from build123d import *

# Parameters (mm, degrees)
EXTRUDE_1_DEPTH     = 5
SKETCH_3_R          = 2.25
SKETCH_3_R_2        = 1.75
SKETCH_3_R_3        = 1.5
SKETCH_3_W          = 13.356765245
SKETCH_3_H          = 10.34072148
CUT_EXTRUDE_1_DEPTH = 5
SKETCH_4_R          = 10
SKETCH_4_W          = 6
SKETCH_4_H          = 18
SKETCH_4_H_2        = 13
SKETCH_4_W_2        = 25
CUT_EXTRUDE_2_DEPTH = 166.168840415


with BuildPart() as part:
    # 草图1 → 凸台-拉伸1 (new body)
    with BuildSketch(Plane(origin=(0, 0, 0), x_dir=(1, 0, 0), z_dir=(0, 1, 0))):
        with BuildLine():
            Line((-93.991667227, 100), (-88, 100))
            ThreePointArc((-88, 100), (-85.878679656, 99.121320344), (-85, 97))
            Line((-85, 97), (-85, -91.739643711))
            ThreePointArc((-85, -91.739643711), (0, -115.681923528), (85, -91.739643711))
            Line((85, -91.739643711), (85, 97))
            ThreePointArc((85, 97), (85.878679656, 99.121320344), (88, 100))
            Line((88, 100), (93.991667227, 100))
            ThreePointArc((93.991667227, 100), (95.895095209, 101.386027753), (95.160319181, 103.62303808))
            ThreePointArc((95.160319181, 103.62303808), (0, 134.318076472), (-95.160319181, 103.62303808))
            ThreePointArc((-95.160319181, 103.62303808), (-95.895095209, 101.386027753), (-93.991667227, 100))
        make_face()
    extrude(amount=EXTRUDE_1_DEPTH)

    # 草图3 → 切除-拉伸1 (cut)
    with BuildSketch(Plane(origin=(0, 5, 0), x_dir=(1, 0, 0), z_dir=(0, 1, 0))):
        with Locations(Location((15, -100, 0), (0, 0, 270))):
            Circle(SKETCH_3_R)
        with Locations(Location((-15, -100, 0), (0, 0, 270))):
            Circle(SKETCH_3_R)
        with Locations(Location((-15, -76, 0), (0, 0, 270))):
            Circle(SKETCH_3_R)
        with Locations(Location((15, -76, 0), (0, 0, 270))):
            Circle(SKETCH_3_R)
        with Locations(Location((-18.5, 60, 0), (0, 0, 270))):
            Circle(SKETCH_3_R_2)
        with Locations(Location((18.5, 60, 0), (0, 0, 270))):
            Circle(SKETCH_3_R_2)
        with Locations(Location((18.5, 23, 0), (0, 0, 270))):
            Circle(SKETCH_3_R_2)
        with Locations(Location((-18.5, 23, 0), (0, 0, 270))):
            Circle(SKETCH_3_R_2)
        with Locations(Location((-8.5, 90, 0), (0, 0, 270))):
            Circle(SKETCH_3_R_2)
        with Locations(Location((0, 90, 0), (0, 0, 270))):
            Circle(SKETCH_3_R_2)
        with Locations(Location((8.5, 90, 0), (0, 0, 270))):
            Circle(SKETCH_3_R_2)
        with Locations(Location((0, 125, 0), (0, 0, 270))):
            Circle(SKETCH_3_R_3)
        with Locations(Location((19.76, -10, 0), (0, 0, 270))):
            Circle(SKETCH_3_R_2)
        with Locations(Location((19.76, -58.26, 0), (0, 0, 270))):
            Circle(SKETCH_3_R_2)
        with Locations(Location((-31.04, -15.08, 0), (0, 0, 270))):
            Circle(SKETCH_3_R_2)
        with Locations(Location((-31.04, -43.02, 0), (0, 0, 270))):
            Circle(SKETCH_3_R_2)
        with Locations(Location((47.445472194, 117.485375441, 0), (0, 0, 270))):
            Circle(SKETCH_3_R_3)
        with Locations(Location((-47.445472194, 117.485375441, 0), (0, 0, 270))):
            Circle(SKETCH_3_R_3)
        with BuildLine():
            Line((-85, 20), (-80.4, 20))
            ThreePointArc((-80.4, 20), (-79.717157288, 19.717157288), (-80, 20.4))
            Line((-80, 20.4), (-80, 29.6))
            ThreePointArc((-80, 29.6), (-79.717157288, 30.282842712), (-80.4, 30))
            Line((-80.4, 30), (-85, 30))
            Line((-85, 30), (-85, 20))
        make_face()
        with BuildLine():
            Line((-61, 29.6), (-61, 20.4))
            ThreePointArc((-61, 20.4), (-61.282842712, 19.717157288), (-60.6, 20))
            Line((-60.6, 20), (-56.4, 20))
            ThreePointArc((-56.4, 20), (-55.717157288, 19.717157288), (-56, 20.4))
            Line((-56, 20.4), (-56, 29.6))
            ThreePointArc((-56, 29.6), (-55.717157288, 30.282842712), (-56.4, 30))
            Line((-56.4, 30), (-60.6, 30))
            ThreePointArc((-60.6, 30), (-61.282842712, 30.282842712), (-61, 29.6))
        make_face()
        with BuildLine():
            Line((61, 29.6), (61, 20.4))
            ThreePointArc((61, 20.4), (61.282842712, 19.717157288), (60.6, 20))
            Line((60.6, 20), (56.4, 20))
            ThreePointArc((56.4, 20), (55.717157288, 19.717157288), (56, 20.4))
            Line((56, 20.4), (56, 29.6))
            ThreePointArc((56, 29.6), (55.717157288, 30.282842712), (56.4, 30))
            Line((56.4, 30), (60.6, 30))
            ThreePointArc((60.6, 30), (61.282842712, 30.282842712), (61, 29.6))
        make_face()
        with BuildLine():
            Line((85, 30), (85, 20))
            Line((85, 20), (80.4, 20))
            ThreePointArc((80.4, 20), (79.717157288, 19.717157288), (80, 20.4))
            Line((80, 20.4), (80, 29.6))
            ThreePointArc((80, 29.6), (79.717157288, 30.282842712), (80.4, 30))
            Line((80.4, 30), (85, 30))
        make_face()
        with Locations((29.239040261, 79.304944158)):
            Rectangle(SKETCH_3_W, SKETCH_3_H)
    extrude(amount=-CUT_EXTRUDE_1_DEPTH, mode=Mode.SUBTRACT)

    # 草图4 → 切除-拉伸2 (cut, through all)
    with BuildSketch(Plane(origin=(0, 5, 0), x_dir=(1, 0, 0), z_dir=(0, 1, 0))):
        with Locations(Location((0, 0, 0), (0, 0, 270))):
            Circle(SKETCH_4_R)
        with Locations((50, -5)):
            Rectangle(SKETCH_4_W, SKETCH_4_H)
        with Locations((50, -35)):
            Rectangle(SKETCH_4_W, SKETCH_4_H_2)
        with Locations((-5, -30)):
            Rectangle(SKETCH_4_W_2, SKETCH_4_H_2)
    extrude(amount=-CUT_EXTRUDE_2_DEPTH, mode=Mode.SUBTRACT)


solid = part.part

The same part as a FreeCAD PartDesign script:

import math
import FreeCAD as App
import Part
import Sketcher
from FreeCAD import Vector


def add_polygon(sketch, points):
    """Adds a closed chain of lines whose ends are joined by coincident constraints."""
    first, n = sketch.GeometryCount, len(points)
    for a, b in zip(points, points[1:] + points[:1]):
        sketch.addGeometry(Part.LineSegment(App.Vector(*a, 0), App.Vector(*b, 0)), False)
    for i in range(n):
        sketch.addConstraint(Sketcher.Constraint("Coincident", first + i, 2, first + (i + 1) % n, 1))

doc = App.newDocument("Part")
body = doc.addObject("PartDesign::Body", "Body")

# Sketch on XZ plane
sketch1 = doc.addObject("Sketcher::SketchObject", "Sketch")
body.addObject(sketch1)
sketch1.AttachmentSupport = (doc.XZ_Plane, [""])
sketch1.MapMode = "FlatFace"
sketch1.addGeometry([
    Part.LineSegment(Vector(-93.991667, -100, 0), Vector(-88, -100, 0)),  # 0
    Part.ArcOfCircle(Part.Circle(Vector(-88, -97, 0), Vector(0, 0, 1), 3), math.radians(-90), math.radians(0)),  # 1
    Part.LineSegment(Vector(-85, -97, 0), Vector(-85, 91.739644, 0)),  # 2
    Part.ArcOfCircle(Part.Circle(Vector(0, -47.172926, 0), Vector(0, 0, 1), 162.85485), math.radians(58.537717), math.radians(121.462283)),  # 3
    Part.LineSegment(Vector(85, 91.739644, 0), Vector(85, -97, 0)),  # 4
    Part.ArcOfCircle(Part.Circle(Vector(88, -97, 0), Vector(0, 0, 1), 3), math.radians(180), math.radians(270)),  # 5
    Part.LineSegment(Vector(88, -100, 0), Vector(93.991667, -100, 0)),  # 6
    Part.ArcOfCircle(Part.Circle(Vector(93.991667, -102, 0), Vector(0, 0, 1), 2), math.radians(-54.244612), math.radians(90)),  # 7
    Part.ArcOfCircle(Part.Circle(Vector(0, 28.536773, 0), Vector(0, 0, 1), 162.85485), math.radians(-125.755388), math.radians(-54.244612)),  # 8
    Part.ArcOfCircle(Part.Circle(Vector(-93.991667, -102, 0), Vector(0, 0, 1), 2), math.radians(90), math.radians(234.244612)),  # 9
], False)
sketch1.addConstraint([
    Sketcher.Constraint("Tangent", 0, 2, 1, 1),
    Sketcher.Constraint("Tangent", 1, 2, 2, 1),
    Sketcher.Constraint("Coincident", 2, 2, 3, 2),
    Sketcher.Constraint("Coincident", 3, 1, 4, 1),
    Sketcher.Constraint("Tangent", 4, 2, 5, 1),
    Sketcher.Constraint("Tangent", 5, 2, 6, 1),
    Sketcher.Constraint("Tangent", 6, 2, 7, 2),
    Sketcher.Constraint("Tangent", 7, 1, 8, 2),
    Sketcher.Constraint("Tangent", 8, 1, 9, 2),
    Sketcher.Constraint("Tangent", 9, 1, 0, 1),
    Sketcher.Constraint("Horizontal", 0),
    Sketcher.Constraint("Vertical", 2),
    Sketcher.Constraint("Vertical", 4),
    Sketcher.Constraint("Horizontal", 6),
    Sketcher.Constraint("Equal", 1, 5),
    Sketcher.Constraint("Equal", 3, 8),
    Sketcher.Constraint("Equal", 7, 9),
    Sketcher.Constraint("Symmetric", 1, 3, 5, 3, -2),
    Sketcher.Constraint("PointOnObject", 3, 3, -2),
    Sketcher.Constraint("PointOnObject", 8, 3, -2),
    Sketcher.Constraint("Radius", 1, 3.0),
    Sketcher.Constraint("Radius", 7, 2.0),
    Sketcher.Constraint("DistanceX", 1, 3, -1, 1, 88.0),
    Sketcher.Constraint("DistanceY", 1, 3, -1, 1, 97.0),
    Sketcher.Constraint("Radius", 3, 162.85485),
    Sketcher.Constraint("DistanceY", 3, 3, 8, 3, 75.709699),
    Sketcher.Constraint("DistanceX", 0, 1, 0, 2, 5.991667),
])
pad1 = doc.addObject("PartDesign::Pad", "Pad")
body.addObject(pad1)
pad1.Profile = sketch1
pad1.Length = 5
pad1.Reversed = True

# Sketch on XZ plane
sketch2 = doc.addObject("Sketcher::SketchObject", "Sketch001")
body.addObject(sketch2)
sketch2.AttachmentSupport = (doc.XZ_Plane, [""])
sketch2.MapMode = "FlatFace"
sketch2.AttachmentOffset = App.Placement(Vector(0, 0, -5), App.Rotation())
sketch2.addGeometry(Part.Circle(Vector(15, 100, 0), Vector(0, 0, 1), 2.25), False)  # 0
sketch2.addGeometry(Part.Circle(Vector(-15, 100, 0), Vector(0, 0, 1), 2.25), False)  # 1
sketch2.addGeometry(Part.Circle(Vector(-15, 76, 0), Vector(0, 0, 1), 2.25), False)  # 2
sketch2.addGeometry(Part.Circle(Vector(15, 76, 0), Vector(0, 0, 1), 2.25), False)  # 3
sketch2.addGeometry(Part.Circle(Vector(-18.5, -60, 0), Vector(0, 0, 1), 1.75), False)  # 4
sketch2.addGeometry(Part.Circle(Vector(18.5, -60, 0), Vector(0, 0, 1), 1.75), False)  # 5
sketch2.addGeometry(Part.Circle(Vector(18.5, -23, 0), Vector(0, 0, 1), 1.75), False)  # 6
sketch2.addGeometry(Part.Circle(Vector(-18.5, -23, 0), Vector(0, 0, 1), 1.75), False)  # 7
sketch2.addGeometry(Part.Circle(Vector(-8.5, -90, 0), Vector(0, 0, 1), 1.75), False)  # 8
sketch2.addGeometry(Part.Circle(Vector(0, -90, 0), Vector(0, 0, 1), 1.75), False)  # 9
sketch2.addGeometry(Part.Circle(Vector(8.5, -90, 0), Vector(0, 0, 1), 1.75), False)  # 10
sketch2.addGeometry(Part.Circle(Vector(0, -125, 0), Vector(0, 0, 1), 1.5), False)  # 11
sketch2.addGeometry(Part.Circle(Vector(19.76, 10, 0), Vector(0, 0, 1), 1.75), False)  # 12
sketch2.addGeometry(Part.Circle(Vector(19.76, 58.26, 0), Vector(0, 0, 1), 1.75), False)  # 13
sketch2.addGeometry(Part.Circle(Vector(-31.04, 15.08, 0), Vector(0, 0, 1), 1.75), False)  # 14
sketch2.addGeometry(Part.Circle(Vector(-31.04, 43.02, 0), Vector(0, 0, 1), 1.75), False)  # 15
sketch2.addGeometry(Part.Circle(Vector(47.445472, -117.485375, 0), Vector(0, 0, 1), 1.5), False)  # 16
sketch2.addGeometry(Part.Circle(Vector(-47.445472, -117.485375, 0), Vector(0, 0, 1), 1.5), False)  # 17
sketch2.addGeometry(Part.LineSegment(Vector(-85, -20, 0), Vector(-80.4, -20, 0)), False)  # 18
sketch2.addGeometry(Part.ArcOfCircle(Part.Circle(Vector(-80, -20, 0), Vector(0, 0, 1), 0.4), math.radians(-90), math.radians(180)), False)  # 19
sketch2.addGeometry(Part.LineSegment(Vector(-80, -20.4, 0), Vector(-80, -29.6, 0)), False)  # 20
sketch2.addGeometry(Part.ArcOfCircle(Part.Circle(Vector(-80, -30, 0), Vector(0, 0, 1), 0.4), math.radians(180), math.radians(450)), False)  # 21
sketch2.addGeometry(Part.LineSegment(Vector(-80.4, -30, 0), Vector(-85, -30, 0)), False)  # 22
sketch2.addGeometry(Part.LineSegment(Vector(-85, -30, 0), Vector(-85, -20, 0)), False)  # 23
sketch2.addGeometry(Part.LineSegment(Vector(-61, -29.6, 0), Vector(-61, -20.4, 0)), False)  # 24
sketch2.addGeometry(Part.ArcOfCircle(Part.Circle(Vector(-61, -20, 0), Vector(0, 0, 1), 0.4), math.radians(0), math.radians(270)), False)  # 25
sketch2.addGeometry(Part.LineSegment(Vector(-60.6, -20, 0), Vector(-56.4, -20, 0)), False)  # 26
sketch2.addGeometry(Part.ArcOfCircle(Part.Circle(Vector(-56, -20, 0), Vector(0, 0, 1), 0.4), math.radians(-90), math.radians(180)), False)  # 27
sketch2.addGeometry(Part.LineSegment(Vector(-56, -20.4, 0), Vector(-56, -29.6, 0)), False)  # 28
sketch2.addGeometry(Part.ArcOfCircle(Part.Circle(Vector(-56, -30, 0), Vector(0, 0, 1), 0.4), math.radians(180), math.radians(450)), False)  # 29
sketch2.addGeometry(Part.LineSegment(Vector(-56.4, -30, 0), Vector(-60.6, -30, 0)), False)  # 30
sketch2.addGeometry(Part.ArcOfCircle(Part.Circle(Vector(-61, -30, 0), Vector(0, 0, 1), 0.4), math.radians(90), math.radians(360)), False)  # 31
sketch2.addGeometry(Part.LineSegment(Vector(61, -20.4, 0), Vector(61, -29.6, 0)), False)  # 32
sketch2.addGeometry(Part.ArcOfCircle(Part.Circle(Vector(61, -30, 0), Vector(0, 0, 1), 0.4), math.radians(180), math.radians(450)), False)  # 33
sketch2.addGeometry(Part.LineSegment(Vector(60.6, -30, 0), Vector(56.4, -30, 0)), False)  # 34
sketch2.addGeometry(Part.ArcOfCircle(Part.Circle(Vector(56, -30, 0), Vector(0, 0, 1), 0.4), math.radians(90), math.radians(360)), False)  # 35
sketch2.addGeometry(Part.LineSegment(Vector(56, -29.6, 0), Vector(56, -20.4, 0)), False)  # 36
sketch2.addGeometry(Part.ArcOfCircle(Part.Circle(Vector(56, -20, 0), Vector(0, 0, 1), 0.4), math.radians(0), math.radians(270)), False)  # 37
sketch2.addGeometry(Part.LineSegment(Vector(56.4, -20, 0), Vector(60.6, -20, 0)), False)  # 38
sketch2.addGeometry(Part.ArcOfCircle(Part.Circle(Vector(61, -20, 0), Vector(0, 0, 1), 0.4), math.radians(-90), math.radians(180)), False)  # 39
sketch2.addGeometry(Part.LineSegment(Vector(85, -20, 0), Vector(85, -30, 0)), False)  # 40
sketch2.addGeometry(Part.LineSegment(Vector(85, -30, 0), Vector(80.4, -30, 0)), False)  # 41
sketch2.addGeometry(Part.ArcOfCircle(Part.Circle(Vector(80, -30, 0), Vector(0, 0, 1), 0.4), math.radians(90), math.radians(360)), False)  # 42
sketch2.addGeometry(Part.LineSegment(Vector(80, -29.6, 0), Vector(80, -20.4, 0)), False)  # 43
sketch2.addGeometry(Part.ArcOfCircle(Part.Circle(Vector(80, -20, 0), Vector(0, 0, 1), 0.4), math.radians(0), math.radians(270)), False)  # 44
sketch2.addGeometry(Part.LineSegment(Vector(80.4, -20, 0), Vector(85, -20, 0)), False)  # 45
add_polygon(sketch2, [(22.560658, -84.475305), (22.560658, -74.134583), (35.917423, -74.134583), (35.917423, -84.475305)])  # lines 46-49
sketch2.addConstraint([
    Sketcher.Constraint("Coincident", 18, 2, 19, 2),
    Sketcher.Constraint("Coincident", 19, 1, 20, 1),
    Sketcher.Constraint("Coincident", 20, 2, 21, 2),
    Sketcher.Constraint("Coincident", 21, 1, 22, 1),
    Sketcher.Constraint("Coincident", 22, 2, 23, 1),
    Sketcher.Constraint("Coincident", 23, 2, 18, 1),
    Sketcher.Constraint("Coincident", 24, 2, 25, 2),
    Sketcher.Constraint("Coincident", 25, 1, 26, 1),
    Sketcher.Constraint("Coincident", 26, 2, 27, 2),
    Sketcher.Constraint("Coincident", 27, 1, 28, 1),
    Sketcher.Constraint("Coincident", 28, 2, 29, 2),
    Sketcher.Constraint("Coincident", 29, 1, 30, 1),
    Sketcher.Constraint("Coincident", 30, 2, 31, 2),
    Sketcher.Constraint("Coincident", 31, 1, 24, 1),
    Sketcher.Constraint("Coincident", 32, 2, 33, 2),
    Sketcher.Constraint("Coincident", 33, 1, 34, 1),
    Sketcher.Constraint("Coincident", 34, 2, 35, 2),
    Sketcher.Constraint("Coincident", 35, 1, 36, 1),
    Sketcher.Constraint("Coincident", 36, 2, 37, 2),
    Sketcher.Constraint("Coincident", 37, 1, 38, 1),
    Sketcher.Constraint("Coincident", 38, 2, 39, 2),
    Sketcher.Constraint("Coincident", 39, 1, 32, 1),
    Sketcher.Constraint("Coincident", 40, 2, 41, 1),
    Sketcher.Constraint("Coincident", 41, 2, 42, 2),
    Sketcher.Constraint("Coincident", 42, 1, 43, 1),
    Sketcher.Constraint("Coincident", 43, 2, 44, 2),
    Sketcher.Constraint("Coincident", 44, 1, 45, 1),
    Sketcher.Constraint("Coincident", 45, 2, 40, 1),
    Sketcher.Constraint("Horizontal", 18),
    Sketcher.Constraint("Vertical", 20),
    Sketcher.Constraint("Horizontal", 22),
    Sketcher.Constraint("Vertical", 23),
    Sketcher.Constraint("Vertical", 24),
    Sketcher.Constraint("Horizontal", 26),
    Sketcher.Constraint("Vertical", 28),
    Sketcher.Constraint("Horizontal", 30),
    Sketcher.Constraint("Vertical", 32),
    Sketcher.Constraint("Horizontal", 34),
    Sketcher.Constraint("Vertical", 36),
    Sketcher.Constraint("Horizontal", 38),
    Sketcher.Constraint("Vertical", 40),
    Sketcher.Constraint("Horizontal", 41),
    Sketcher.Constraint("Vertical", 43),
    Sketcher.Constraint("Horizontal", 45),
    Sketcher.Constraint("Vertical", 46),
    Sketcher.Constraint("Horizontal", 47),
    Sketcher.Constraint("Vertical", 48),
    Sketcher.Constraint("Horizontal", 49),
    Sketcher.Constraint("Equal", 0, 1),
    Sketcher.Constraint("Equal", 1, 2),
    Sketcher.Constraint("Equal", 2, 3),
    Sketcher.Constraint("Equal", 4, 5),
    Sketcher.Constraint("Equal", 5, 6),
    Sketcher.Constraint("Equal", 6, 7),
    Sketcher.Constraint("Equal", 7, 8),
    Sketcher.Constraint("Equal", 8, 9),
    Sketcher.Constraint("Equal", 9, 10),
    Sketcher.Constraint("Equal", 10, 12),
    Sketcher.Constraint("Equal", 12, 13),
    Sketcher.Constraint("Equal", 13, 14),
    Sketcher.Constraint("Equal", 14, 15),
    Sketcher.Constraint("Equal", 11, 16),
    Sketcher.Constraint("Equal", 16, 17),
    Sketcher.Constraint("Equal", 19, 21),
    Sketcher.Constraint("Equal", 21, 25),
    Sketcher.Constraint("Equal", 25, 27),
    Sketcher.Constraint("Equal", 27, 29),
    Sketcher.Constraint("Equal", 29, 31),
    Sketcher.Constraint("Equal", 31, 33),
    Sketcher.Constraint("Equal", 33, 35),
    Sketcher.Constraint("Equal", 35, 37),
    Sketcher.Constraint("Equal", 37, 39),
    Sketcher.Constraint("Equal", 39, 42),
    Sketcher.Constraint("Equal", 42, 44),
    Sketcher.Constraint("Symmetric", 0, 3, 1, 3, -2),
    Sketcher.Constraint("Symmetric", 2, 3, 3, 3, -2),
    Sketcher.Constraint("Symmetric", 4, 3, 5, 3, -2),
    Sketcher.Constraint("Symmetric", 6, 3, 7, 3, -2),
    Sketcher.Constraint("Symmetric", 8, 3, 10, 3, -2),
    Sketcher.Constraint("Symmetric", 16, 3, 17, 3, -2),
    Sketcher.Constraint("Symmetric", 31, 3, 33, 3, -2),
    Sketcher.Constraint("Symmetric", 29, 3, 35, 3, -2),
    Sketcher.Constraint("Symmetric", 27, 3, 37, 3, -2),
    Sketcher.Constraint("Symmetric", 25, 3, 39, 3, -2),
    Sketcher.Constraint("Symmetric", 21, 3, 42, 3, -2),
    Sketcher.Constraint("Symmetric", 19, 3, 44, 3, -2),
    Sketcher.Constraint("Symmetric", 22, 2, 40, 2, -2),
    Sketcher.Constraint("PointOnObject", 9, 3, -2),
    Sketcher.Constraint("PointOnObject", 11, 3, -2),
    Sketcher.Constraint("Horizontal", 8, 3, 9, 3),
    Sketcher.Constraint("Horizontal", 19, 3, 25, 3),
    Sketcher.Constraint("Horizontal", 25, 3, 27, 3),
    Sketcher.Constraint("Horizontal", 21, 3, 29, 3),
    Sketcher.Constraint("Horizontal", 29, 3, 31, 3),
    Sketcher.Constraint("Horizontal", 44, 3, 18, 2),
    Sketcher.Constraint("Horizontal", 42, 3, 21, 1),
    Sketcher.Constraint("Horizontal", 23, 2, 25, 1),
    Sketcher.Constraint("Horizontal", 22, 2, 29, 1),
    Sketcher.Constraint("Horizontal", 30, 2, 33, 1),
    Sketcher.Constraint("Horizontal", 26, 2, 37, 1),
    Sketcher.Constraint("Horizontal", 38, 2, 44, 1),
    Sketcher.Constraint("Vertical", 1, 3, 2, 3),
    Sketcher.Constraint("Vertical", 5, 3, 6, 3),
    Sketcher.Constraint("Vertical", 12, 3, 13, 3),
    Sketcher.Constraint("Vertical", 14, 3, 15, 3),
    Sketcher.Constraint("Vertical", 19, 3, 21, 3),
    Sketcher.Constraint("Vertical", 27, 3, 29, 3),
    Sketcher.Constraint("Vertical", 25, 3, 31, 3),
    Sketcher.Constraint("Vertical", 21, 3, 19, 1),
    Sketcher.Constraint("Vertical", 31, 3, 24, 2),
    Sketcher.Constraint("Vertical", 29, 3, 27, 1),
    Sketcher.Constraint("Vertical", 39, 3, 32, 2),
    Sketcher.Constraint("Vertical", 37, 3, 35, 1),
    Sketcher.Constraint("Vertical", 44, 3, 42, 1),
    Sketcher.Constraint("Diameter", 11, 3.0),
    Sketcher.Constraint("Diameter", 0, 4.5),
    Sketcher.Constraint("Diameter", 4, 3.5),
    Sketcher.Constraint("Radius", 19, 0.4),
    Sketcher.Constraint("DistanceY", 23, 1, 23, 2, 10.0),
    Sketcher.Constraint("DistanceX", 18, 1, 18, 2, 4.6),
    Sketcher.Constraint("DistanceX", 26, 1, 26, 2, 4.2),
    Sketcher.Constraint("DistanceX", -1, 1, 0, 3, 15.0),
    Sketcher.Constraint("DistanceY", -1, 1, 0, 3, 100.0),
    Sketcher.Constraint("DistanceY", -1, 1, 2, 3, 76.0),
    Sketcher.Constraint("DistanceY", 4, 3, -1, 1, 60.0),
    Sketcher.Constraint("DistanceY", 6, 3, -1, 1, 23.0),
    Sketcher.Constraint("DistanceY", 8, 3, -1, 1, 90.0),
    Sketcher.Constraint("DistanceY", 11, 3, -1, 1, 125.0),
    Sketcher.Constraint("DistanceY", -1, 1, 12, 3, 10.0),
    Sketcher.Constraint("DistanceX", 19, 3, -1, 1, 80.0),
    Sketcher.Constraint("DistanceY", 19, 3, -1, 1, 20.0),
    Sketcher.Constraint("DistanceX", 25, 3, -1, 1, 61.0),
    Sketcher.Constraint("DistanceX", 4, 3, -1, 1, 18.5),
    Sketcher.Constraint("DistanceX", 8, 3, -1, 1, 8.5),
    Sketcher.Constraint("DistanceX", -1, 1, 12, 3, 19.76),
    Sketcher.Constraint("DistanceY", -1, 1, 13, 3, 58.26),
    Sketcher.Constraint("DistanceX", 14, 3, -1, 1, 31.04),
    Sketcher.Constraint("DistanceY", -1, 1, 14, 3, 15.08),
    Sketcher.Constraint("DistanceY", -1, 1, 15, 3, 43.02),
    Sketcher.Constraint("DistanceY", 46, 1, 46, 2, 10.340721),
    Sketcher.Constraint("DistanceX", 47, 1, 47, 2, 13.356765),
    Sketcher.Constraint("DistanceX", -1, 1, 16, 3, 47.445472),
    Sketcher.Constraint("DistanceY", 16, 3, -1, 1, 117.485375),
    Sketcher.Constraint("DistanceX", -1, 1, 46, 2, 22.560658),
    Sketcher.Constraint("DistanceY", 46, 2, -1, 1, 74.134583),
])
pocket1 = doc.addObject("PartDesign::Pocket", "Pocket")
body.addObject(pocket1)
pocket1.Profile = sketch2
pocket1.Length = 5
pocket1.Reversed = True

# Sketch on XZ plane
sketch3 = doc.addObject("Sketcher::SketchObject", "Sketch002")
body.addObject(sketch3)
sketch3.AttachmentSupport = (doc.XZ_Plane, [""])
sketch3.MapMode = "FlatFace"
sketch3.AttachmentOffset = App.Placement(Vector(0, 0, -5), App.Rotation())
sketch3.addGeometry(Part.Circle(Vector(0, 0, 0), Vector(0, 0, 1), 10), False)  # 0
add_polygon(sketch3, [(47, -4), (47, 14), (53, 14), (53, -4)])  # lines 1-4
add_polygon(sketch3, [(47, 28.5), (47, 41.5), (53, 41.5), (53, 28.5)])  # lines 5-8
add_polygon(sketch3, [(-17.5, 23.5), (-17.5, 36.5), (7.5, 36.5), (7.5, 23.5)])  # lines 9-12
sketch3.addConstraint([
    Sketcher.Constraint("Vertical", 1),
    Sketcher.Constraint("Horizontal", 2),
    Sketcher.Constraint("Vertical", 3),
    Sketcher.Constraint("Horizontal", 4),
    Sketcher.Constraint("Vertical", 5),
    Sketcher.Constraint("Horizontal", 6),
    Sketcher.Constraint("Vertical", 7),
    Sketcher.Constraint("Horizontal", 8),
    Sketcher.Constraint("Vertical", 9),
    Sketcher.Constraint("Horizontal", 10),
    Sketcher.Constraint("Vertical", 11),
    Sketcher.Constraint("Horizontal", 12),
    Sketcher.Constraint("Coincident", 0, 3, -1, 1),
    Sketcher.Constraint("Vertical", 4, 2, 5, 2),
    Sketcher.Constraint("Vertical", 3, 2, 6, 2),
    Sketcher.Constraint("Equal", 7, 9),
    Sketcher.Constraint("Diameter", 0, 20.0),
    Sketcher.Constraint("DistanceX", 2, 1, 2, 2, 6.0),
    Sketcher.Constraint("DistanceX", 10, 1, 10, 2, 25.0),
    Sketcher.Constraint("DistanceY", 1, 1, 1, 2, 18.0),
    Sketcher.Constraint("DistanceY", 5, 1, 5, 2, 13.0),
    Sketcher.Constraint("DistanceX", -1, 1, 1, 2, 47.0),
    Sketcher.Constraint("DistanceY", -1, 1, 1, 2, 14.0),
    Sketcher.Constraint("DistanceY", 9, 2, 5, 2, 5.0),
    Sketcher.Constraint("DistanceY", -1, 1, 5, 2, 41.5),
    Sketcher.Constraint("DistanceX", 9, 2, -1, 1, 17.5),
])
pocket2 = doc.addObject("PartDesign::Pocket", "Pocket001")
body.addObject(pocket2)
pocket2.Profile = sketch3
pocket2.Type = "ThroughAll"
pocket2.Reversed = True

doc.recompute()
